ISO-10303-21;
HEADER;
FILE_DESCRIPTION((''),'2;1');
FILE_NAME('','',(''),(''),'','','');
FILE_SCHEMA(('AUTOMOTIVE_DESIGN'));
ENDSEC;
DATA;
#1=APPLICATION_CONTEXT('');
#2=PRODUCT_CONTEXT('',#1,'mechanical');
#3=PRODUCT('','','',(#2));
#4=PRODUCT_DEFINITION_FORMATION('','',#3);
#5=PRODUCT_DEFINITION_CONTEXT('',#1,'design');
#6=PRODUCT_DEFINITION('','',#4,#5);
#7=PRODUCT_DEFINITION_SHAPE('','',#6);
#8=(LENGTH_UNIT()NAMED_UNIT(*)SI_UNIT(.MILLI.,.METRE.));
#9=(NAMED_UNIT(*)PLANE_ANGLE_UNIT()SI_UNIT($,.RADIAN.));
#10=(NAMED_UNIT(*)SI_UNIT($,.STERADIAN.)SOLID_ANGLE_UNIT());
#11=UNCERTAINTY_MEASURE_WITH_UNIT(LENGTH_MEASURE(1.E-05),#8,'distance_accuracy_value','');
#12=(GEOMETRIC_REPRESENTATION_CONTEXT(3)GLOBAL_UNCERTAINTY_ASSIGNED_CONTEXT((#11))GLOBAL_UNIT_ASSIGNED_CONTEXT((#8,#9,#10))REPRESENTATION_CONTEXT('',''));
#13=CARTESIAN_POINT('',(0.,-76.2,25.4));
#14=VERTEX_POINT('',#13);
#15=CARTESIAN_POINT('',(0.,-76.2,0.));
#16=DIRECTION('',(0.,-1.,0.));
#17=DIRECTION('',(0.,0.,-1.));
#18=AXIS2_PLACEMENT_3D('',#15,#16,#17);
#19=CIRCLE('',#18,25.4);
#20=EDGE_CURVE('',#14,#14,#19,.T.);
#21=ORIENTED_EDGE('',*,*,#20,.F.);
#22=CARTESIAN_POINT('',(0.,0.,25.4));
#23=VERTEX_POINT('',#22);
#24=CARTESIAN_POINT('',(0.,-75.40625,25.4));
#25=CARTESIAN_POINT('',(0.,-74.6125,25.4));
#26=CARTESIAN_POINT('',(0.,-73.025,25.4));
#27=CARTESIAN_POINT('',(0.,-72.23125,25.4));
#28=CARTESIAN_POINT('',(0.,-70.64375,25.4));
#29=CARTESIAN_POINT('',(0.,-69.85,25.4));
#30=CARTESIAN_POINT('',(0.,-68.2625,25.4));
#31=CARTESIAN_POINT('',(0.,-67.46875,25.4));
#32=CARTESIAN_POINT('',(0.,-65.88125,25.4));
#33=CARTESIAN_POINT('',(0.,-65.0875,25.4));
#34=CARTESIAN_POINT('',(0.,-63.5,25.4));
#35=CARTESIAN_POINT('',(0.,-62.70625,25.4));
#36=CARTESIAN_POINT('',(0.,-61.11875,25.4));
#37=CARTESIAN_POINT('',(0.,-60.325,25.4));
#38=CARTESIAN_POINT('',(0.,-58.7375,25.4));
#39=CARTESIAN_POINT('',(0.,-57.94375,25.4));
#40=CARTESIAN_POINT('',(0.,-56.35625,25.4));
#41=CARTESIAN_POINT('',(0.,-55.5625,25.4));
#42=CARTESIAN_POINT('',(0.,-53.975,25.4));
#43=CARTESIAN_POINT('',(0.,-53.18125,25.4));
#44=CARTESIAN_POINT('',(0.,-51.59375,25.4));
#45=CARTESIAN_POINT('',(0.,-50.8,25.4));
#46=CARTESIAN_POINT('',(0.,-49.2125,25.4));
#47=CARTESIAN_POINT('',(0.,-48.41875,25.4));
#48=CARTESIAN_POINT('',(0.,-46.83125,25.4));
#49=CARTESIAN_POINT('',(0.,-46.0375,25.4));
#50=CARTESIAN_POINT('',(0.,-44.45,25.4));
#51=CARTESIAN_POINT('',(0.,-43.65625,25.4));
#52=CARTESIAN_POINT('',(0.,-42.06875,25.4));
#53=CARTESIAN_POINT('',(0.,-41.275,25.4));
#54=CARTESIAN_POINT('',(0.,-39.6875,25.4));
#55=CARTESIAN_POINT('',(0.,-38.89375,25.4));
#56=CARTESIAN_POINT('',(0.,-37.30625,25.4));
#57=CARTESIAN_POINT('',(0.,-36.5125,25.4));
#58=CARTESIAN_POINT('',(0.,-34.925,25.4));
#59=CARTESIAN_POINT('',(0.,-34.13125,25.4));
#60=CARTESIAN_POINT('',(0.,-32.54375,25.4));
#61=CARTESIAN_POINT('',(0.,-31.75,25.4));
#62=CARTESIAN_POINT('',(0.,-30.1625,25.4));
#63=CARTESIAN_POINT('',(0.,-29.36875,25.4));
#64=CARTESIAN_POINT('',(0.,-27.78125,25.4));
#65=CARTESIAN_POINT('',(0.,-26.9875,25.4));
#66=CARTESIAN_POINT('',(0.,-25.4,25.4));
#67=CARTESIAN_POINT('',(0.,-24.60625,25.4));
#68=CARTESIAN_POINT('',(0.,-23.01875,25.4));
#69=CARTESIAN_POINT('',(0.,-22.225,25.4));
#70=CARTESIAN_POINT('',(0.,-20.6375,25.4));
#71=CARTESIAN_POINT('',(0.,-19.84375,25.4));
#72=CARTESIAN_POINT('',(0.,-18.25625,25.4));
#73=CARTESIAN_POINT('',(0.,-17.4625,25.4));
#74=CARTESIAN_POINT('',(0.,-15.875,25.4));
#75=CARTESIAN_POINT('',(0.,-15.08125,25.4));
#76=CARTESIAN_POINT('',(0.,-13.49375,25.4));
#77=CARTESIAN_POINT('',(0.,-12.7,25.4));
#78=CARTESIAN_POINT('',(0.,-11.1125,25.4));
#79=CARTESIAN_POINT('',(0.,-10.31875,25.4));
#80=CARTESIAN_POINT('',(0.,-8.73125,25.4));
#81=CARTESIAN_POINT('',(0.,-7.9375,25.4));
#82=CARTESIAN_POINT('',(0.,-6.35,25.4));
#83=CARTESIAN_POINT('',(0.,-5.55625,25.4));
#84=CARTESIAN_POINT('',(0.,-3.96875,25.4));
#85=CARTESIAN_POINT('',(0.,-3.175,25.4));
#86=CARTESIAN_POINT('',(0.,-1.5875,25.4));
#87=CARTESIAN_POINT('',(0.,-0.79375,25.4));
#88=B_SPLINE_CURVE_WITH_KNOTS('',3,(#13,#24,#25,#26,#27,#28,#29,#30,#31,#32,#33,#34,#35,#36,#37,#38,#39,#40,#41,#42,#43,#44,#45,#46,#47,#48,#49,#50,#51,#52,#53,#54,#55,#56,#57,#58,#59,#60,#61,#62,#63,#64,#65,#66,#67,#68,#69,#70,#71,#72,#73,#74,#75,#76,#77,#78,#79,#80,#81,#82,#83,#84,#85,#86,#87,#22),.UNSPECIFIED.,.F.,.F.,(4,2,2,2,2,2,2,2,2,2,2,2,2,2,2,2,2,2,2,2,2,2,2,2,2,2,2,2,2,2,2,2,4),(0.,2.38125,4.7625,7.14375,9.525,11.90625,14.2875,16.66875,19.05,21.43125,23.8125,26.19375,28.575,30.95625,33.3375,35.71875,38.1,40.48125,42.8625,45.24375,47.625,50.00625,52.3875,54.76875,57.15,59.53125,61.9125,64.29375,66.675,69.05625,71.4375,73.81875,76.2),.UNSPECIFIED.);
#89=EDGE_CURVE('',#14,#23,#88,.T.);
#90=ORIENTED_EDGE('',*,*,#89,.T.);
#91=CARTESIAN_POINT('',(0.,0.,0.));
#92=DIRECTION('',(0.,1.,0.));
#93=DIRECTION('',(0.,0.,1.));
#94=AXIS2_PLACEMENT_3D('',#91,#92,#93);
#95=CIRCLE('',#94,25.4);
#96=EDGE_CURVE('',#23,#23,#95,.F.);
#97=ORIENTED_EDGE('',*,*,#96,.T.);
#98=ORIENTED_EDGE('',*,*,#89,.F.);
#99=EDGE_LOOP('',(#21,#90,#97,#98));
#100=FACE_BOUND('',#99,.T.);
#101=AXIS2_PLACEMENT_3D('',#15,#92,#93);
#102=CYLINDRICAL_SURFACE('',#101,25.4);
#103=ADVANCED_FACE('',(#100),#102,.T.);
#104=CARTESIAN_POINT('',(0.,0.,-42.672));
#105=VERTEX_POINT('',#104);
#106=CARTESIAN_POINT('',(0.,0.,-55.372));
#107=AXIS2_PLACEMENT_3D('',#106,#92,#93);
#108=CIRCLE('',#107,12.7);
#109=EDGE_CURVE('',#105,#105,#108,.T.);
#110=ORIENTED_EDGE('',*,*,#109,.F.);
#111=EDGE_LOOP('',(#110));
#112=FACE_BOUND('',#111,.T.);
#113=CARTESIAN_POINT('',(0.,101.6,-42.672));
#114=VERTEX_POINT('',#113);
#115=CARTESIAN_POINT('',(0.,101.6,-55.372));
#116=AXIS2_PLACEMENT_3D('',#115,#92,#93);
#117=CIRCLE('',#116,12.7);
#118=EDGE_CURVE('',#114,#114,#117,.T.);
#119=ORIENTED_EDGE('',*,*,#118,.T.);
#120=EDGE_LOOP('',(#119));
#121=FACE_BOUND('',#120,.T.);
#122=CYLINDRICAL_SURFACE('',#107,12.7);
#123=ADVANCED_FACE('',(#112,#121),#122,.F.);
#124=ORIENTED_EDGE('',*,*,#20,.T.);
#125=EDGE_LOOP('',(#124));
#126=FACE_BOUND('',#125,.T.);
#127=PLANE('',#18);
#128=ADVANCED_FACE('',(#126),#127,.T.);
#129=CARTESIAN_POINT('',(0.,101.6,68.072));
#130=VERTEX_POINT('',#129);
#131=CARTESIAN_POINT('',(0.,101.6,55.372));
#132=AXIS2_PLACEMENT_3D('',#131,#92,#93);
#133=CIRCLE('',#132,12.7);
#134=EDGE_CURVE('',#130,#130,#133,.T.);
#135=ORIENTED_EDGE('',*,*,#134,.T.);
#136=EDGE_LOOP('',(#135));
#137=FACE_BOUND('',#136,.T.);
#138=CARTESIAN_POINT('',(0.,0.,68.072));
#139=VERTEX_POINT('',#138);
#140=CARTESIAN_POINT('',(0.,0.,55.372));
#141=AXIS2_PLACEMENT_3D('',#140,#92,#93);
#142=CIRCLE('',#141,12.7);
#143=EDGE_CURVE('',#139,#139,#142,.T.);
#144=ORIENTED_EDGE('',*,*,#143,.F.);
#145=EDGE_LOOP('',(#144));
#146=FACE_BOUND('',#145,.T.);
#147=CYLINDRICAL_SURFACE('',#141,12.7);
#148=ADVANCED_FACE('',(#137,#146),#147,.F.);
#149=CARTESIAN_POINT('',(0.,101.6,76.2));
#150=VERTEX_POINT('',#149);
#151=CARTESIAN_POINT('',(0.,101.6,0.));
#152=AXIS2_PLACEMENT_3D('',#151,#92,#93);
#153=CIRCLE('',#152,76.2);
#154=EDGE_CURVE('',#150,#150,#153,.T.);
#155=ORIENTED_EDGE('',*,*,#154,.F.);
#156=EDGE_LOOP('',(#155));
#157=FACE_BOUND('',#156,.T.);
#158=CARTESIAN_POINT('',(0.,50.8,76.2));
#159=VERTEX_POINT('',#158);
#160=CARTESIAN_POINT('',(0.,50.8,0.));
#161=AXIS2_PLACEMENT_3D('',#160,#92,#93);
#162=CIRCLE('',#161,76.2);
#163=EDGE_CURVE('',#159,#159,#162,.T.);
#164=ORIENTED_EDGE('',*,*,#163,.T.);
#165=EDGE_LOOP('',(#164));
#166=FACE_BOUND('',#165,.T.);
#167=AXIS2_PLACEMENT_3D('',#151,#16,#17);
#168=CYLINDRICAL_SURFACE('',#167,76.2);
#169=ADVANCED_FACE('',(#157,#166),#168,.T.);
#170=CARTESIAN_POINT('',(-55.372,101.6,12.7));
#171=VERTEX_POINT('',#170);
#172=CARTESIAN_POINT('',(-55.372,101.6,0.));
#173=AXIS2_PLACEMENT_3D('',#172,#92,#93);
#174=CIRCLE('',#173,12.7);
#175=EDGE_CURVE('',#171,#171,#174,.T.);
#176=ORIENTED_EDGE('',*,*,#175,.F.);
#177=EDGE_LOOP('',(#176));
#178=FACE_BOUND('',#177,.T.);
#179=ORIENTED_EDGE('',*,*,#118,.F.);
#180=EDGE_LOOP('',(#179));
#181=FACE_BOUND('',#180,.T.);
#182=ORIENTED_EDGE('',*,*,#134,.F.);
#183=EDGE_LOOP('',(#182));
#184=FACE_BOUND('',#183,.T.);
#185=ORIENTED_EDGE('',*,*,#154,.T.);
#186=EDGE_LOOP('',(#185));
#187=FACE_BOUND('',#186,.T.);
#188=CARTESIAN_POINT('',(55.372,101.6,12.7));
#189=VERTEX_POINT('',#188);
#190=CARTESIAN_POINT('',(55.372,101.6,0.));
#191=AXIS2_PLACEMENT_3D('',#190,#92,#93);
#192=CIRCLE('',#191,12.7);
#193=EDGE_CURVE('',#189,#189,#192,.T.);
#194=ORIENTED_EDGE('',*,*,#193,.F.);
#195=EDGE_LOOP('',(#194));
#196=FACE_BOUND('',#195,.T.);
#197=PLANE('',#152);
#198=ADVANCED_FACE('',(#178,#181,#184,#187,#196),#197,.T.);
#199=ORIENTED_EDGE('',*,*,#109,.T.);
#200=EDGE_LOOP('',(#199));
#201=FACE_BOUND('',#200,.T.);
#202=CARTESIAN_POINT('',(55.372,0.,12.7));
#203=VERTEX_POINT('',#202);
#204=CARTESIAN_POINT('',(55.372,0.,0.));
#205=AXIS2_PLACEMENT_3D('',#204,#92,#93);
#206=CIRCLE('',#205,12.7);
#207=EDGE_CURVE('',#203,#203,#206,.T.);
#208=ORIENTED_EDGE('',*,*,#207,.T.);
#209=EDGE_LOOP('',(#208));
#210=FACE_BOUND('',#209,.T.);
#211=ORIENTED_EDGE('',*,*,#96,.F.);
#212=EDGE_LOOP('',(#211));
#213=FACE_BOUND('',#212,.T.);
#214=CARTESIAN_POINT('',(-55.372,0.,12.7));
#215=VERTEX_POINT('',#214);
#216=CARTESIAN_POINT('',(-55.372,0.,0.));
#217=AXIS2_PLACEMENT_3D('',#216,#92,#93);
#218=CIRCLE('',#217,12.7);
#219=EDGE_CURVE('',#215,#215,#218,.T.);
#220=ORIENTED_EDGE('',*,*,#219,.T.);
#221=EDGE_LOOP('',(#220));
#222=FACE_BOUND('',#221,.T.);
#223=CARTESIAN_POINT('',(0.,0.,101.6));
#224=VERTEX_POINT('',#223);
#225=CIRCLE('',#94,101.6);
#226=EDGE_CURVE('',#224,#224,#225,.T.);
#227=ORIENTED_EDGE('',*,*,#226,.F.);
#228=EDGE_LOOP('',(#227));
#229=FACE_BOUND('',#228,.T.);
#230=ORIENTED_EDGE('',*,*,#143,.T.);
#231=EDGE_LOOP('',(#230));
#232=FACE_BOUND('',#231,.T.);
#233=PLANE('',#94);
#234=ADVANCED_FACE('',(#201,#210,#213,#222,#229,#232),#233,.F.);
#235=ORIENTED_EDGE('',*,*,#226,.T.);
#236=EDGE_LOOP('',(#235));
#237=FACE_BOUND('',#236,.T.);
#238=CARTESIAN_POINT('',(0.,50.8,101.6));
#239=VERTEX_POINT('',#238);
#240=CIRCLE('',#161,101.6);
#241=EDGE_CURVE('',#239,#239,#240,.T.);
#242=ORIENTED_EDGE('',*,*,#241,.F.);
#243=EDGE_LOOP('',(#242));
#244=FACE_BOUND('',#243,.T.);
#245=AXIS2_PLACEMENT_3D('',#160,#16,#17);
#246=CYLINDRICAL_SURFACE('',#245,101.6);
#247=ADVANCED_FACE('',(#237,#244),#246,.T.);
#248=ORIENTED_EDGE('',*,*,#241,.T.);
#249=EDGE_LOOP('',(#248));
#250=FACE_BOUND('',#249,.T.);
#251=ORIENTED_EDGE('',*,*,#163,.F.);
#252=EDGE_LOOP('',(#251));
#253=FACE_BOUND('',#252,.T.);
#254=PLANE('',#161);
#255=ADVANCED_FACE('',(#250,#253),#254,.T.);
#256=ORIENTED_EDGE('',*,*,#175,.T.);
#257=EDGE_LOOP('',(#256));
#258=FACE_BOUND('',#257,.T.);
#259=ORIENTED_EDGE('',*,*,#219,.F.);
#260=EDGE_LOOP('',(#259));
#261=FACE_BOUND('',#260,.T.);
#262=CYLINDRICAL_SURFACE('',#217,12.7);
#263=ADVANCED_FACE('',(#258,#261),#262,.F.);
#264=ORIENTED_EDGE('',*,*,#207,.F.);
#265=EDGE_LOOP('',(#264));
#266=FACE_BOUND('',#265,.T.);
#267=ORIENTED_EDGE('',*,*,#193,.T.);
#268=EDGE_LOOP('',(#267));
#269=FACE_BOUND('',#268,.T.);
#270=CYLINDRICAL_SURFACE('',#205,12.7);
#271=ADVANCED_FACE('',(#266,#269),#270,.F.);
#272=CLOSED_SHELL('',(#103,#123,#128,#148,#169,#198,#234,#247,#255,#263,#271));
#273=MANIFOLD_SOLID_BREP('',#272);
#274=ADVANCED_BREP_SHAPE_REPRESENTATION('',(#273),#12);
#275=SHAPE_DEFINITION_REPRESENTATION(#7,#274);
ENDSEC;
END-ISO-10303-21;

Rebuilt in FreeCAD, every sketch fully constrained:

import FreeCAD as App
import Part
import Sketcher

V = App.Vector
Q = App.Units.Quantity

doc = App.newDocument("Part")
params = doc.addObject("Spreadsheet::Sheet", "Params")
for row, (alias, value) in enumerate([
    ("sketch1_diameter", "8 in"),
    ("pad1_length", "2 in"),
    ("sketch2_diameter", "6 in"),
    ("pad2_length", "2 in"),
    ("sketch3_diameter", "1 in"),
    ("sketch4_diameter", "2 in"),
    ("pad3_length", "3 in"),
], start=1):
    params.set(f"A{row}", alias)
    params.set(f"B{row}", "=" + value)
    params.setAlias(f"B{row}", alias)

body = doc.addObject("PartDesign::Body", "Body")

# Sketch on XZ plane
sketch1 = body.newObject("Sketcher::SketchObject", "Sketch")
sketch1.AttachmentSupport = (doc.getObject("XZ_Plane"), [""])
sketch1.MapMode = "FlatFace"
sketch1.addGeometry(Part.Circle(V(0, 0, 0), V(0, 0, 1), 102), False)
sketch1.addConstraint([
    Sketcher.Constraint("Coincident", 0, 3, -1, 1),
    Sketcher.Constraint("Diameter", 0, Q("8 in")),
])
sketch1.setExpression("Constraints[1]", "Params.sketch1_diameter")
pad1 = body.newObject("PartDesign::Pad", "Pad")
pad1.Profile = sketch1
pad1.setExpression("Length", "Params.pad1_length")
pad1.Reversed = True

# Sketch on XZ plane
sketch2 = body.newObject("Sketcher::SketchObject", "Sketch001")
sketch2.AttachmentSupport = (doc.getObject("XZ_Plane"), [""])
sketch2.MapMode = "FlatFace"
sketch2.AttachmentOffset = App.Placement(V(0, 0, -2 * 25.4), App.Rotation())
sketch2.addGeometry(Part.Circle(V(0, 0, 0), V(0, 0, 1), 76), False)
sketch2.addConstraint([
    Sketcher.Constraint("Coincident", 0, 3, -1, 1),
    Sketcher.Constraint("Diameter", 0, Q("6 in")),
])
sketch2.setExpression("Constraints[1]", "Params.sketch2_diameter")
pad2 = body.newObject("PartDesign::Pad", "Pad001")
pad2.Profile = sketch2
pad2.setExpression("Length", "Params.pad2_length")
pad2.Reversed = True

# Sketch on XZ plane
sketch3 = body.newObject("Sketcher::SketchObject", "Sketch002")
sketch3.AttachmentSupport = (doc.getObject("XZ_Plane"), [""])
sketch3.MapMode = "FlatFace"
sketch3.AttachmentOffset = App.Placement(V(0, 0, -4 * 25.4), App.Rotation())
sketch3.addGeometry([
    Part.Circle(V(0, -55, 0), V(0, 0, 1), 13),
    Part.Circle(V(-55, 0, 0), V(0, 0, 1), 13),
    Part.Circle(V(0, 55, 0), V(0, 0, 1), 13),
    Part.Circle(V(55, 0, 0), V(0, 0, 1), 13),
], False)
sketch3.addConstraint([
    Sketcher.Constraint("Equal", 0, 1),
    Sketcher.Constraint("Equal", 1, 2),
    Sketcher.Constraint("Equal", 2, 3),
    Sketcher.Constraint("Symmetric", 0, 3, 2, 3, -1, 1),
    Sketcher.Constraint("Symmetric", 1, 3, 3, 3, -1, 1),
    Sketcher.Constraint("PointOnObject", 0, 3, -2),
    Sketcher.Constraint("PointOnObject", 1, 3, -1),
    Sketcher.Constraint("Diameter", 0, Q("1 in")),
    Sketcher.Constraint("DistanceY", 0, 3, -1, 1, Q("2.18 in")),
    Sketcher.Constraint("DistanceX", 1, 3, -1, 1, Q("2.18 in")),
])
sketch3.setExpression("Constraints[7]", "Params.sketch3_diameter")
pocket1 = body.newObject("PartDesign::Pocket", "Pocket")
pocket1.Profile = sketch3
pocket1.Type = "ThroughAll"
pocket1.Reversed = True

# Sketch on XZ plane
sketch4 = body.newObject("Sketcher::SketchObject", "Sketch003")
sketch4.AttachmentSupport = (doc.getObject("XZ_Plane"), [""])
sketch4.MapMode = "FlatFace"
sketch4.addGeometry(Part.Circle(V(0, 0, 0), V(0, 0, 1), 25), False)
sketch4.addConstraint([
    Sketcher.Constraint("Coincident", 0, 3, -1, 1),
    Sketcher.Constraint("Diameter", 0, Q("2 in")),
])
sketch4.setExpression("Constraints[1]", "Params.sketch4_diameter")
pad3 = body.newObject("PartDesign::Pad", "Pad002")
pad3.Profile = sketch4
pad3.setExpression("Length", "Params.pad3_length")

doc.recompute()
